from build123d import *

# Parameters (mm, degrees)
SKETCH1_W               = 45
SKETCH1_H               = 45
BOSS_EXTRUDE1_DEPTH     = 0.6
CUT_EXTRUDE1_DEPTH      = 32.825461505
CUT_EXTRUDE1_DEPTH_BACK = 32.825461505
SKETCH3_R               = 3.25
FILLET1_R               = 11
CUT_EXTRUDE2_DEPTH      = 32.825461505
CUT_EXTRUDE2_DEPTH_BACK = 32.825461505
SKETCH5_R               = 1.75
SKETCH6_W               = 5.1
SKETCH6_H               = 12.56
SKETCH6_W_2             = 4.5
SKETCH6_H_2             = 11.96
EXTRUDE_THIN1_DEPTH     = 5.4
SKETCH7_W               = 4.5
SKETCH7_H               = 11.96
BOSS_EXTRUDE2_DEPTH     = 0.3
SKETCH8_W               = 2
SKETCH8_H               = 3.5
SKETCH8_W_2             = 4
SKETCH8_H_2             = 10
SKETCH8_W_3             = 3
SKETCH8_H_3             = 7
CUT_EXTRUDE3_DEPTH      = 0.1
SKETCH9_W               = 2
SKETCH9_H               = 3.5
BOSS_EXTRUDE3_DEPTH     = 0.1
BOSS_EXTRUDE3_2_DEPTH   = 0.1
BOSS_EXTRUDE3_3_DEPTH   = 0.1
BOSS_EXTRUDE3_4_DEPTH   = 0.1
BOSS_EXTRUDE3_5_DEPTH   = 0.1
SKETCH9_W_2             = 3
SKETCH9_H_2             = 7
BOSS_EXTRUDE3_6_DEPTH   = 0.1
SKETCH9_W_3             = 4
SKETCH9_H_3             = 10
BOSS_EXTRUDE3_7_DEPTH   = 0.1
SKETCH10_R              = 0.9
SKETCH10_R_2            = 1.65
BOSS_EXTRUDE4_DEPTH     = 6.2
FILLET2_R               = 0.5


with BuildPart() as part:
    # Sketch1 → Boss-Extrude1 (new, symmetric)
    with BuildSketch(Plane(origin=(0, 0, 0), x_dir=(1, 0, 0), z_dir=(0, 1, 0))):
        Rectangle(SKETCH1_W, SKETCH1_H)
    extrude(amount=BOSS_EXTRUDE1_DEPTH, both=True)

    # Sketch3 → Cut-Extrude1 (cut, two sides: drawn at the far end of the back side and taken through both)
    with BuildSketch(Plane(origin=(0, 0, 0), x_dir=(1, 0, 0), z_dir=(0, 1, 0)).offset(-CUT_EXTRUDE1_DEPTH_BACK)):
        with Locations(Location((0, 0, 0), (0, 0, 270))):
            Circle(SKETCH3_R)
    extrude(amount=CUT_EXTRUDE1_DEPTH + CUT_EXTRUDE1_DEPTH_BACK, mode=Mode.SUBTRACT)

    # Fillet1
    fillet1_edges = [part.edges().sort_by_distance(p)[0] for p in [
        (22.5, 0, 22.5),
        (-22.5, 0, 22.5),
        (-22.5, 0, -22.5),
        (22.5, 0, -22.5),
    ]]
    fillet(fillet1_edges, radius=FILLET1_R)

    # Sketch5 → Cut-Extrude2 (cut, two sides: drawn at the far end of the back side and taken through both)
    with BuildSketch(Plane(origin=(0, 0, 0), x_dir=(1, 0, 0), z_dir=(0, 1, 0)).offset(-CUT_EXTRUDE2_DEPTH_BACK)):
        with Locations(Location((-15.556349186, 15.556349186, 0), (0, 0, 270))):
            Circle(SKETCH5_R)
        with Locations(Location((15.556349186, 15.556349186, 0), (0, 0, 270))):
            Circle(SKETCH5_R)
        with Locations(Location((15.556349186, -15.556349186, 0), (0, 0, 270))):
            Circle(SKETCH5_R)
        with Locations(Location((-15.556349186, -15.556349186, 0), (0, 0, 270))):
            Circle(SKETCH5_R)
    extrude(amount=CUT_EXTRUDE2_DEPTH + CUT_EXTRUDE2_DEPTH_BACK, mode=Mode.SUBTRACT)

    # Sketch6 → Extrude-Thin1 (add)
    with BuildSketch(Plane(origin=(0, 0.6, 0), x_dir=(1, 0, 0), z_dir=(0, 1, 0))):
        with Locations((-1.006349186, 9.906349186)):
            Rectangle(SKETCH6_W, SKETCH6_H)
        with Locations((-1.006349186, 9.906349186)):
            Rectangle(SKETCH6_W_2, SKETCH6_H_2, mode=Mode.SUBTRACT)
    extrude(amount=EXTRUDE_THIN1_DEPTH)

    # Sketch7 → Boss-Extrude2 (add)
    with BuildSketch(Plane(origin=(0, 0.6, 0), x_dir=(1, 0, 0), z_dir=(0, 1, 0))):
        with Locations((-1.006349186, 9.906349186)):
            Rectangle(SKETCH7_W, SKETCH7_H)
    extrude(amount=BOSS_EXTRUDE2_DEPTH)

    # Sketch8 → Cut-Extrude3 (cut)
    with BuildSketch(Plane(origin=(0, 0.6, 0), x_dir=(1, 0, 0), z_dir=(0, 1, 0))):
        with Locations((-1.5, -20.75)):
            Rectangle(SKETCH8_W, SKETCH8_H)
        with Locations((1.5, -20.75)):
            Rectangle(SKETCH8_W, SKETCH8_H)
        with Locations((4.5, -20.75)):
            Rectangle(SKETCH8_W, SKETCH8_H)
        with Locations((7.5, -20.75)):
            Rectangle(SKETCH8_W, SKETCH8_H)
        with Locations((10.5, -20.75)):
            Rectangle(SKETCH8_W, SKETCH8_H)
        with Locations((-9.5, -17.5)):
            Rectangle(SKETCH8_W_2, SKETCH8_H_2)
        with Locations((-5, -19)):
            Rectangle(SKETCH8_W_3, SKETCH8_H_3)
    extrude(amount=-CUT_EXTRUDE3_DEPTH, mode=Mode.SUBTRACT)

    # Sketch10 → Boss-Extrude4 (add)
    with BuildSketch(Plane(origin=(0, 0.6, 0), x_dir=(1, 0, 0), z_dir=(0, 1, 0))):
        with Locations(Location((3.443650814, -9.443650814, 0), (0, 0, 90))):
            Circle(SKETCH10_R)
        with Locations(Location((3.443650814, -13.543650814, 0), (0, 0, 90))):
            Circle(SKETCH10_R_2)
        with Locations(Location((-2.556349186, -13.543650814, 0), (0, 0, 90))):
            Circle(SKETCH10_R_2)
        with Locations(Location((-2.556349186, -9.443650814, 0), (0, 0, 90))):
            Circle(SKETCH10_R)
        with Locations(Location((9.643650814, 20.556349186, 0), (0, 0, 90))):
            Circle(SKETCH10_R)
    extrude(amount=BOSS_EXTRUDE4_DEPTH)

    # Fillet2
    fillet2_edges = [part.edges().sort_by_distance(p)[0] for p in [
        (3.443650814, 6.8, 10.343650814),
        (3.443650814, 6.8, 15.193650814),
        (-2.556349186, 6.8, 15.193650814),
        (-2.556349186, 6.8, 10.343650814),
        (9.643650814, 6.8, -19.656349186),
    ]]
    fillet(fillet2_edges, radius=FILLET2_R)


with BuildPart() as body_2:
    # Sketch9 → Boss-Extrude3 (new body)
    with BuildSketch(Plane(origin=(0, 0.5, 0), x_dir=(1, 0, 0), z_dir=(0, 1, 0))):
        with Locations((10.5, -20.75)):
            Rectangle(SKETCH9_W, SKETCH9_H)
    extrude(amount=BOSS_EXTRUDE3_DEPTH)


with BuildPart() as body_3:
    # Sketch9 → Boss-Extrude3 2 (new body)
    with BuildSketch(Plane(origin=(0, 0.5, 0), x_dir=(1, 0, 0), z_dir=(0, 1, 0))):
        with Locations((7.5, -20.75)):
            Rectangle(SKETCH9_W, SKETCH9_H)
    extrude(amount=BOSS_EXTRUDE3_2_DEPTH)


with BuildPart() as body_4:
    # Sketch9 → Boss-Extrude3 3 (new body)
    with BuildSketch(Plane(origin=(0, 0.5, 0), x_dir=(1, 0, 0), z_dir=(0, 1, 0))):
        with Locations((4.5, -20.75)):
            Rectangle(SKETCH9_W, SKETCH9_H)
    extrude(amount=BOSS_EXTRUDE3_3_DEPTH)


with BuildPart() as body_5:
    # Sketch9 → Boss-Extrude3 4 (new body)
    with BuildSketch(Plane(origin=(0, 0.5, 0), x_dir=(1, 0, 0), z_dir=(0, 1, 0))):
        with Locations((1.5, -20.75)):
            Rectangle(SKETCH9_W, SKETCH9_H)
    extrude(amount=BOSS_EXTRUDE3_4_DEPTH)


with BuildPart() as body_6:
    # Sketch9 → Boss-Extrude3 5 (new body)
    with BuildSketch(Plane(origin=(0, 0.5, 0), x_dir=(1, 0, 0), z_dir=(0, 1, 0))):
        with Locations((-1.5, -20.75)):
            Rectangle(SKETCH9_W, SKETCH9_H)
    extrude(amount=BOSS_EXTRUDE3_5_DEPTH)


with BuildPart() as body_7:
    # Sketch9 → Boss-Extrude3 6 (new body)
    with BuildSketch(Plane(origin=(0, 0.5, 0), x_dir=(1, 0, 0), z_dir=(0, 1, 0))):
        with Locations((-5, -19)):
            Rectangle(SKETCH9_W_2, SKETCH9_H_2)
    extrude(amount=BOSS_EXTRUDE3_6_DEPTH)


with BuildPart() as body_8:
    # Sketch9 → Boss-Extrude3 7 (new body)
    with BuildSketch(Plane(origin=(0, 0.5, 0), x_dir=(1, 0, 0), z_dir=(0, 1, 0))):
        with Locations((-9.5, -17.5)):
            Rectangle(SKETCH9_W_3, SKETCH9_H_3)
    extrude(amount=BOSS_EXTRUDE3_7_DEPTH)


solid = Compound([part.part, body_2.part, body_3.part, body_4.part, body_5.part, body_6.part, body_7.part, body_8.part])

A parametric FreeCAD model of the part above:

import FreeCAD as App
import Part
import Sketcher
Q = App.Units.Quantity


def edges_at(feature, points):
    """Names of the edges that pass closest to the given points."""
    edges = feature.Shape.Edges
    near = lambda p: min(range(len(edges)), key=lambda i: edges[i].distToShape(Part.Vertex(*p))[0])
    return sorted({f"Edge{near(p) + 1}" for p in points})

doc = App.newDocument("Part")
body = doc.addObject("PartDesign::Body", "Body")

# Sketch on XZ plane
sketch1 = body.newObject("Sketcher::SketchObject", "Sketch")
sketch1.AttachmentSupport = (doc.getObject("XZ_Plane"), [""])
sketch1.MapMode = "FlatFace"
sketch1.addGeometry([
    Part.LineSegment(App.Vector(-22, -22, 0), App.Vector(-22, 22, 0)),
    Part.LineSegment(App.Vector(-22, 22, 0), App.Vector(22, 22, 0)),
    Part.LineSegment(App.Vector(22, 22, 0), App.Vector(22, -22, 0)),
    Part.LineSegment(App.Vector(22, -22, 0), App.Vector(-22, -22, 0)),
], False)
sketch1.addConstraint([
    Sketcher.Constraint("Coincident", 0, 2, 1, 1),
    Sketcher.Constraint("Coincident", 1, 2, 2, 1),
    Sketcher.Constraint("Coincident", 2, 2, 3, 1),
    Sketcher.Constraint("Coincident", 3, 2, 0, 1),
    Sketcher.Constraint("Vertical", 0),
    Sketcher.Constraint("Horizontal", 1),
    Sketcher.Constraint("Vertical", 2),
    Sketcher.Constraint("Horizontal", 3),
    Sketcher.Constraint("Symmetric", 0, 2, 2, 2, -1, 1),
    Sketcher.Constraint("Equal", 3, 0),
    Sketcher.Constraint("DistanceX", 1, 1, 1, 2, Q("45 mm")),
])
pad1 = body.newObject("PartDesign::Pad", "Pad")
pad1.Profile = sketch1
pad1.Length = 1.2
pad1.Midplane = True

# Sketch on XZ plane
sketch2 = body.newObject("Sketcher::SketchObject", "Sketch001")
sketch2.AttachmentSupport = (doc.getObject("XZ_Plane"), [""])
sketch2.MapMode = "FlatFace"
sketch2.addGeometry(Part.Circle(App.Vector(0, 0, 0), App.Vector(0, 0, 1), 3.2), False)
sketch2.addConstraint([
    Sketcher.Constraint("Coincident", 0, 3, -1, 1),
    Sketcher.Constraint("Diameter", 0, Q("6.5 mm")),
])
pocket1 = body.newObject("PartDesign::Pocket", "Pocket")
pocket1.Profile = sketch2
pocket1.Type = "ThroughAll"
pocket1.Midplane = True
doc.recompute()

fillet = body.newObject("PartDesign::Fillet", "Fillet")
fillet.Base = (pocket1, edges_at(pocket1, [
    (22.5, 0, 22.5),
    (-22.5, 0, 22.5),
    (-22.5, 0, -22.5),
    (22.5, 0, -22.5),
]))
fillet.Radius = 11

# Sketch on XZ plane
sketch3 = body.newObject("Sketcher::SketchObject", "Sketch002")
sketch3.AttachmentSupport = (doc.getObject("XZ_Plane"), [""])
sketch3.MapMode = "FlatFace"
sketch3.addGeometry([
    Part.Circle(App.Vector(-15.6, -15.6, 0), App.Vector(0, 0, 1), 1.8),
    Part.Circle(App.Vector(15.6, -15.6, 0), App.Vector(0, 0, 1), 1.8),
    Part.Circle(App.Vector(15.6, 15.6, 0), App.Vector(0, 0, 1), 1.8),
    Part.Circle(App.Vector(-15.6, 15.6, 0), App.Vector(0, 0, 1), 1.8),
], False)
sketch3.addConstraint([
    Sketcher.Constraint("Equal", 0, 1),
    Sketcher.Constraint("Equal", 1, 2),
    Sketcher.Constraint("Equal", 2, 3),
    Sketcher.Constraint("Symmetric", 0, 3, 2, 3, -1, 1),
    Sketcher.Constraint("Symmetric", 1, 3, 3, 3, -1, 1),
    Sketcher.Constraint("Symmetric", 0, 3, 1, 3, -2),
    Sketcher.Constraint("Diameter", 0, Q("3.5 mm")),
    Sketcher.Constraint("DistanceX", 0, 3, 1, 3, Q("31.112698 mm")),
    Sketcher.Constraint("DistanceY", 1, 3, 2, 3, Q("31.112698 mm")),
])
pocket2 = body.newObject("PartDesign::Pocket", "Pocket001")
pocket2.Profile = sketch3
pocket2.Type = "ThroughAll"
pocket2.Midplane = True

# Sketch on XZ plane
sketch4 = body.newObject("Sketcher::SketchObject", "Sketch003")
sketch4.AttachmentSupport = (doc.getObject("XZ_Plane"), [""])
sketch4.MapMode = "FlatFace"
sketch4.AttachmentOffset = App.Placement(App.Vector(0, 0, -0.6), App.Rotation())
sketch4.addGeometry([
    Part.LineSegment(App.Vector(-3.6, -16.2, 0), App.Vector(-3.6, -3.6, 0)),  # 0
    Part.LineSegment(App.Vector(-3.6, -3.6, 0), App.Vector(1.5, -3.6, 0)),  # 1
    Part.LineSegment(App.Vector(1.5, -3.6, 0), App.Vector(1.5, -16.2, 0)),  # 2
    Part.LineSegment(App.Vector(1.5, -16.2, 0), App.Vector(-3.6, -16.2, 0)),  # 3
    Part.LineSegment(App.Vector(1.2, -3.9, 0), App.Vector(-3.3, -3.9, 0)),  # 4
    Part.LineSegment(App.Vector(-3.3, -3.9, 0), App.Vector(-3.3, -15.9, 0)),  # 5
    Part.LineSegment(App.Vector(-3.3, -15.9, 0), App.Vector(1.2, -15.9, 0)),  # 6
    Part.LineSegment(App.Vector(1.2, -15.9, 0), App.Vector(1.2, -3.9, 0)),  # 7
], False)
sketch4.addConstraint([
    Sketcher.Constraint("Coincident", 0, 2, 1, 1),
    Sketcher.Constraint("Coincident", 1, 2, 2, 1),
    Sketcher.Constraint("Coincident", 2, 2, 3, 1),
    Sketcher.Constraint("Coincident", 3, 2, 0, 1),
    Sketcher.Constraint("Coincident", 4, 2, 5, 1),
    Sketcher.Constraint("Coincident", 5, 2, 6, 1),
    Sketcher.Constraint("Coincident", 6, 2, 7, 1),
    Sketcher.Constraint("Coincident", 7, 2, 4, 1),
    Sketcher.Constraint("Vertical", 0),
    Sketcher.Constraint("Horizontal", 1),
    Sketcher.Constraint("Vertical", 2),
    Sketcher.Constraint("Horizontal", 3),
    Sketcher.Constraint("Horizontal", 4),
    Sketcher.Constraint("Vertical", 5),
    Sketcher.Constraint("Horizontal", 6),
    Sketcher.Constraint("Vertical", 7),
    Sketcher.Constraint("DistanceX", 1, 1, 1, 2, Q("5.1 mm")),
    Sketcher.Constraint("DistanceX", 4, 2, 4, 1, Q("4.5 mm")),
    Sketcher.Constraint("DistanceY", 0, 1, 0, 2, Q("12.56 mm")),
    Sketcher.Constraint("DistanceY", 5, 2, 5, 1, Q("11.96 mm")),
    Sketcher.Constraint("DistanceX", 0, 2, 4, 2, Q("0.3 mm")),
    Sketcher.Constraint("DistanceY", 4, 2, 0, 2, Q("0.3 mm")),
    Sketcher.Constraint("DistanceX", 0, 2, -1, 1, Q("3.556349 mm")),
    Sketcher.Constraint("DistanceY", 0, 2, -1, 1, Q("3.626349 mm")),
])
pad2 = body.newObject("PartDesign::Pad", "Pad001")
pad2.Profile = sketch4
pad2.Length = 5.4
pad2.Reversed = True

# Sketch on XZ plane
sketch5 = body.newObject("Sketcher::SketchObject", "Sketch004")
sketch5.AttachmentSupport = (doc.getObject("XZ_Plane"), [""])
sketch5.MapMode = "FlatFace"
sketch5.AttachmentOffset = App.Placement(App.Vector(0, 0, -0.6), App.Rotation())
sketch5.addGeometry([
    Part.LineSegment(App.Vector(-3.3, -15.9, 0), App.Vector(-3.3, -3.9, 0)),
    Part.LineSegment(App.Vector(-3.3, -3.9, 0), App.Vector(1.2, -3.9, 0)),
    Part.LineSegment(App.Vector(1.2, -3.9, 0), App.Vector(1.2, -15.9, 0)),
    Part.LineSegment(App.Vector(1.2, -15.9, 0), App.Vector(-3.3, -15.9, 0)),
], False)
sketch5.addConstraint([
    Sketcher.Constraint("Coincident", 0, 2, 1, 1),
    Sketcher.Constraint("Coincident", 1, 2, 2, 1),
    Sketcher.Constraint("Coincident", 2, 2, 3, 1),
    Sketcher.Constraint("Coincident", 3, 2, 0, 1),
    Sketcher.Constraint("Vertical", 0),
    Sketcher.Constraint("Horizontal", 1),
    Sketcher.Constraint("Vertical", 2),
    Sketcher.Constraint("Horizontal", 3),
    Sketcher.Constraint("DistanceX", 1, 1, 1, 2, Q("4.5 mm")),
    Sketcher.Constraint("DistanceY", 0, 1, 0, 2, Q("11.96 mm")),
    Sketcher.Constraint("DistanceX", 0, 2, -1, 1, Q("3.256349 mm")),
    Sketcher.Constraint("DistanceY", 0, 2, -1, 1, Q("3.926349 mm")),
])
pad3 = body.newObject("PartDesign::Pad", "Pad002")
pad3.Profile = sketch5
pad3.Length = 0.3
pad3.Reversed = True

# Sketch on XZ plane
sketch6 = body.newObject("Sketcher::SketchObject", "Sketch005")
sketch6.AttachmentSupport = (doc.getObject("XZ_Plane"), [""])
sketch6.MapMode = "FlatFace"
sketch6.AttachmentOffset = App.Placement(App.Vector(0, 0, -0.6), App.Rotation())
sketch6.addGeometry([
    Part.LineSegment(App.Vector(-2.5, 19, 0), App.Vector(-2.5, 22.5, 0)),  # 0
    Part.LineSegment(App.Vector(-2.5, 22.5, 0), App.Vector(-0.5, 22.5, 0)),  # 1
    Part.LineSegment(App.Vector(-0.5, 22.5, 0), App.Vector(-0.5, 19, 0)),  # 2
    Part.LineSegment(App.Vector(-0.5, 19, 0), App.Vector(-2.5, 19, 0)),  # 3
    Part.LineSegment(App.Vector(0.5, 19, 0), App.Vector(0.5, 22.5, 0)),  # 4
    Part.LineSegment(App.Vector(0.5, 22.5, 0), App.Vector(2.5, 22.5, 0)),  # 5
    Part.LineSegment(App.Vector(2.5, 22.5, 0), App.Vector(2.5, 19, 0)),  # 6
    Part.LineSegment(App.Vector(2.5, 19, 0), App.Vector(0.5, 19, 0)),  # 7
    Part.LineSegment(App.Vector(3.5, 19, 0), App.Vector(3.5, 22.5, 0)),  # 8
    Part.LineSegment(App.Vector(3.5, 22.5, 0), App.Vector(5.5, 22.5, 0)),  # 9
    Part.LineSegment(App.Vector(5.5, 22.5, 0), App.Vector(5.5, 19, 0)),  # 10
    Part.LineSegment(App.Vector(5.5, 19, 0), App.Vector(3.5, 19, 0)),  # 11
    Part.LineSegment(App.Vector(6.5, 19, 0), App.Vector(6.5, 22.5, 0)),  # 12
    Part.LineSegment(App.Vector(6.5, 22.5, 0), App.Vector(8.5, 22.5, 0)),  # 13
    Part.LineSegment(App.Vector(8.5, 22.5, 0), App.Vector(8.5, 19, 0)),  # 14
    Part.LineSegment(App.Vector(8.5, 19, 0), App.Vector(6.5, 19, 0)),  # 15
    Part.LineSegment(App.Vector(9.5, 19, 0), App.Vector(9.5, 22.5, 0)),  # 16
    Part.LineSegment(App.Vector(9.5, 22.5, 0), App.Vector(11.5, 22.5, 0)),  # 17
    Part.LineSegment(App.Vector(11.5, 22.5, 0), App.Vector(11.5, 19, 0)),  # 18
    Part.LineSegment(App.Vector(11.5, 19, 0), App.Vector(9.5, 19, 0)),  # 19
    Part.LineSegment(App.Vector(-11.5, 12.5, 0), App.Vector(-11.5, 22.5, 0)),  # 20
    Part.LineSegment(App.Vector(-11.5, 22.5, 0), App.Vector(-7.5, 22.5, 0)),  # 21
    Part.LineSegment(App.Vector(-7.5, 22.5, 0), App.Vector(-7.5, 12.5, 0)),  # 22
    Part.LineSegment(App.Vector(-7.5, 12.5, 0), App.Vector(-11.5, 12.5, 0)),  # 23
    Part.LineSegment(App.Vector(-6.5, 15.5, 0), App.Vector(-6.5, 22.5, 0)),  # 24
    Part.LineSegment(App.Vector(-6.5, 22.5, 0), App.Vector(-3.5, 22.5, 0)),  # 25
    Part.LineSegment(App.Vector(-3.5, 22.5, 0), App.Vector(-3.5, 15.5, 0)),  # 26
    Part.LineSegment(App.Vector(-3.5, 15.5, 0), App.Vector(-6.5, 15.5, 0)),  # 27
], False)
sketch6.addConstraint([
    Sketcher.Constraint("Coincident", 0, 2, 1, 1),
    Sketcher.Constraint("Coincident", 1, 2, 2, 1),
    Sketcher.Constraint("Coincident", 2, 2, 3, 1),
    Sketcher.Constraint("Coincident", 3, 2, 0, 1),
    Sketcher.Constraint("Coincident", 4, 2, 5, 1),
    Sketcher.Constraint("Coincident", 5, 2, 6, 1),
    Sketcher.Constraint("Coincident", 6, 2, 7, 1),
    Sketcher.Constraint("Coincident", 7, 2, 4, 1),
    Sketcher.Constraint("Coincident", 8, 2, 9, 1),
    Sketcher.Constraint("Coincident", 9, 2, 10, 1),
    Sketcher.Constraint("Coincident", 10, 2, 11, 1),
    Sketcher.Constraint("Coincident", 11, 2, 8, 1),
    Sketcher.Constraint("Coincident", 12, 2, 13, 1),
    Sketcher.Constraint("Coincident", 13, 2, 14, 1),
    Sketcher.Constraint("Coincident", 14, 2, 15, 1),
    Sketcher.Constraint("Coincident", 15, 2, 12, 1),
    Sketcher.Constraint("Coincident", 16, 2, 17, 1),
    Sketcher.Constraint("Coincident", 17, 2, 18, 1),
    Sketcher.Constraint("Coincident", 18, 2, 19, 1),
    Sketcher.Constraint("Coincident", 19, 2, 16, 1),
    Sketcher.Constraint("Coincident", 20, 2, 21, 1),
    Sketcher.Constraint("Coincident", 21, 2, 22, 1),
    Sketcher.Constraint("Coincident", 22, 2, 23, 1),
    Sketcher.Constraint("Coincident", 23, 2, 20, 1),
    Sketcher.Constraint("Coincident", 24, 2, 25, 1),
    Sketcher.Constraint("Coincident", 25, 2, 26, 1),
    Sketcher.Constraint("Coincident", 26, 2, 27, 1),
    Sketcher.Constraint("Coincident", 27, 2, 24, 1),
    Sketcher.Constraint("Vertical", 0),
    Sketcher.Constraint("Horizontal", 1),
    Sketcher.Constraint("Vertical", 2),
    Sketcher.Constraint("Horizontal", 3),
    Sketcher.Constraint("Vertical", 4),
    Sketcher.Constraint("Horizontal", 5),
    Sketcher.Constraint("Vertical", 6),
    Sketcher.Constraint("Horizontal", 7),
    Sketcher.Constraint("Vertical", 8),
    Sketcher.Constraint("Horizontal", 9),
    Sketcher.Constraint("Vertical", 10),
    Sketcher.Constraint("Horizontal", 11),
    Sketcher.Constraint("Vertical", 12),
    Sketcher.Constraint("Horizontal", 13),
    Sketcher.Constraint("Vertical", 14),
    Sketcher.Constraint("Horizontal", 15),
    Sketcher.Constraint("Vertical", 16),
    Sketcher.Constraint("Horizontal", 17),
    Sketcher.Constraint("Vertical", 18),
    Sketcher.Constraint("Horizontal", 19),
    Sketcher.Constraint("Vertical", 20),
    Sketcher.Constraint("Horizontal", 21),
    Sketcher.Constraint("Vertical", 22),
    Sketcher.Constraint("Horizontal", 23),
    Sketcher.Constraint("Vertical", 24),
    Sketcher.Constraint("Horizontal", 25),
    Sketcher.Constraint("Vertical", 26),
    Sketcher.Constraint("Horizontal", 27),
    Sketcher.Constraint("Symmetric", 1, 2, 4, 2, -2),
    Sketcher.Constraint("Symmetric", 3, 2, 6, 2, -2),
    Sketcher.Constraint("Symmetric", 17, 2, 20, 2, -2),
    Sketcher.Constraint("Symmetric", 12, 2, 24, 2, -2),
    Sketcher.Constraint("Symmetric", 8, 2, 25, 2, -2),
    Sketcher.Constraint("Horizontal", 5, 2, 8, 2),
    Sketcher.Constraint("Horizontal", 7, 2, 10, 2),
    Sketcher.Constraint("Horizontal", 11, 2, 14, 2),
    Sketcher.Constraint("Horizontal", 13, 2, 16, 2),
    Sketcher.Constraint("Horizontal", 15, 2, 18, 2),
    Sketcher.Constraint("Equal", 7, 9),
    Sketcher.Constraint("Equal", 11, 13),
    Sketcher.Constraint("Equal", 15, 17),
    Sketcher.Constraint("DistanceX", 1, 1, 1, 2, Q("2 mm")),
    Sketcher.Constraint("DistanceX", 21, 1, 21, 2, Q("4 mm")),
    Sketcher.Constraint("DistanceX", 25, 1, 25, 2, Q("3 mm")),
    Sketcher.Constraint("DistanceY", 20, 1, 20, 2, Q("10 mm")),
    Sketcher.Constraint("DistanceY", 24, 1, 24, 2, Q("7 mm")),
    Sketcher.Constraint("DistanceY", 0, 1, 0, 2, Q("3.5 mm")),
    Sketcher.Constraint("DistanceY", -1, 1, 2, 2, Q("19 mm")),
    Sketcher.Constraint("DistanceX", 1, 2, 4, 2, Q("1 mm")),
    Sketcher.Constraint("DistanceX", 5, 2, 8, 2, Q("1 mm")),
    Sketcher.Constraint("DistanceX", 13, 2, 16, 2, Q("1 mm")),
])
pocket3 = body.newObject("PartDesign::Pocket", "Pocket002")
pocket3.Profile = sketch6
pocket3.Length = 0.1
pocket3.Reversed = True

# Sketch on XZ plane
sketch7 = body.newObject("Sketcher::SketchObject", "Sketch006")
sketch7.AttachmentSupport = (doc.getObject("XZ_Plane"), [""])
sketch7.MapMode = "FlatFace"
sketch7.AttachmentOffset = App.Placement(App.Vector(0, 0, -0.6), App.Rotation())
sketch7.addGeometry([
    Part.Circle(App.Vector(3.4, 9.4, 0), App.Vector(0, 0, 1), 0.9),  # 0
    Part.Circle(App.Vector(3.4, 13.5, 0), App.Vector(0, 0, 1), 1.6),  # 1
    Part.Circle(App.Vector(-2.6, 13.5, 0), App.Vector(0, 0, 1), 1.6),  # 2
    Part.Circle(App.Vector(-2.6, 9.4, 0), App.Vector(0, 0, 1), 0.9),  # 3
    Part.Circle(App.Vector(9.6, -20.6, 0), App.Vector(0, 0, 1), 0.9),  # 4
], False)
sketch7.addConstraint([
    Sketcher.Constraint("Equal", 1, 2),
    Sketcher.Constraint("Equal", 0, 3),
    Sketcher.Constraint("Equal", 3, 4),
    Sketcher.Constraint("Horizontal", 1, 3, 2, 3),
    Sketcher.Constraint("Horizontal", 0, 3, 3, 3),
    Sketcher.Constraint("Vertical", 0, 3, 1, 3),
    Sketcher.Constraint("Vertical", 2, 3, 3, 3),
    Sketcher.Constraint("Diameter", 0, Q("1.8 mm")),
    Sketcher.Constraint("Diameter", 1, Q("3.3 mm")),
    Sketcher.Constraint("DistanceX", 2, 3, 1, 3, Q("6 mm")),
    Sketcher.Constraint("DistanceY", 4, 3, 0, 3, Q("30 mm")),
    Sketcher.Constraint("DistanceY", 0, 3, 1, 3, Q("4.1 mm")),
    Sketcher.Constraint("DistanceX", 0, 3, 4, 3, Q("6.2 mm")),
    Sketcher.Constraint("DistanceX", -1, 1, 0, 3, Q("3.443651 mm")),
    Sketcher.Constraint("DistanceY", -1, 1, 0, 3, Q("9.443651 mm")),
])
pad4 = body.newObject("PartDesign::Pad", "Pad003")
pad4.Profile = sketch7
pad4.Length = 6.2
pad4.Reversed = True
doc.recompute()

fillet2 = body.newObject("PartDesign::Fillet", "Fillet001")
fillet2.Base = (pad4, edges_at(pad4, [
    (3.444, 6.8, 10.344),
    (3.444, 6.8, 15.194),
    (-2.556, 6.8, 15.194),
    (-2.556, 6.8, 10.344),
    (9.644, 6.8, -19.656),
]))
fillet2.Radius = 0.5
body2 = doc.addObject("PartDesign::Body", "Body001")

# Sketch on XZ plane
sketch8 = body2.newObject("Sketcher::SketchObject", "Sketch007")
sketch8.AttachmentSupport = (doc.getObject("XZ_Plane001"), [""])
sketch8.MapMode = "FlatFace"
sketch8.AttachmentOffset = App.Placement(App.Vector(0, 0, -0.5), App.Rotation())
sketch8.addGeometry([
    Part.LineSegment(App.Vector(9.5, 19, 0), App.Vector(9.5, 22.5, 0)),
    Part.LineSegment(App.Vector(9.5, 22.5, 0), App.Vector(11.5, 22.5, 0)),
    Part.LineSegment(App.Vector(11.5, 22.5, 0), App.Vector(11.5, 19, 0)),
    Part.LineSegment(App.Vector(11.5, 19, 0), App.Vector(9.5, 19, 0)),
], False)
sketch8.addConstraint([
    Sketcher.Constraint("Coincident", 0, 2, 1, 1),
    Sketcher.Constraint("Coincident", 1, 2, 2, 1),
    Sketcher.Constraint("Coincident", 2, 2, 3, 1),
    Sketcher.Constraint("Coincident", 3, 2, 0, 1),
    Sketcher.Constraint("Vertical", 0),
    Sketcher.Constraint("Horizontal", 1),
    Sketcher.Constraint("Vertical", 2),
    Sketcher.Constraint("Horizontal", 3),
    Sketcher.Constraint("DistanceX", 1, 1, 1, 2, Q("2 mm")),
    Sketcher.Constraint("DistanceY", 0, 1, 0, 2, Q("3.5 mm")),
    Sketcher.Constraint("DistanceY", -1, 1, 2, 2, Q("19 mm")),
    Sketcher.Constraint("DistanceX", -1, 1, 0, 2, Q("9.5 mm")),
])
pad5 = body2.newObject("PartDesign::Pad", "Pad004")
pad5.Profile = sketch8
pad5.Length = 0.1
pad5.Reversed = True
body3 = doc.addObject("PartDesign::Body", "Body002")

# Sketch on XZ plane
sketch9 = body3.newObject("Sketcher::SketchObject", "Sketch008")
sketch9.AttachmentSupport = (doc.getObject("XZ_Plane002"), [""])
sketch9.MapMode = "FlatFace"
sketch9.AttachmentOffset = App.Placement(App.Vector(0, 0, -0.5), App.Rotation())
sketch9.addGeometry([
    Part.LineSegment(App.Vector(6.5, 19, 0), App.Vector(6.5, 22.5, 0)),
    Part.LineSegment(App.Vector(6.5, 22.5, 0), App.Vector(8.5, 22.5, 0)),
    Part.LineSegment(App.Vector(8.5, 22.5, 0), App.Vector(8.5, 19, 0)),
    Part.LineSegment(App.Vector(8.5, 19, 0), App.Vector(6.5, 19, 0)),
], False)
sketch9.addConstraint([
    Sketcher.Constraint("Coincident", 0, 2, 1, 1),
    Sketcher.Constraint("Coincident", 1, 2, 2, 1),
    Sketcher.Constraint("Coincident", 2, 2, 3, 1),
    Sketcher.Constraint("Coincident", 3, 2, 0, 1),
    Sketcher.Constraint("Vertical", 0),
    Sketcher.Constraint("Horizontal", 1),
    Sketcher.Constraint("Vertical", 2),
    Sketcher.Constraint("Horizontal", 3),
    Sketcher.Constraint("DistanceX", 1, 1, 1, 2, Q("2 mm")),
    Sketcher.Constraint("DistanceY", 0, 1, 0, 2, Q("3.5 mm")),
    Sketcher.Constraint("DistanceY", -1, 1, 2, 2, Q("19 mm")),
    Sketcher.Constraint("DistanceX", -1, 1, 0, 2, Q("6.5 mm")),
])
pad6 = body3.newObject("PartDesign::Pad", "Pad005")
pad6.Profile = sketch9
pad6.Length = 0.1
pad6.Reversed = True
body4 = doc.addObject("PartDesign::Body", "Body003")

# Sketch on XZ plane
sketch10 = body4.newObject("Sketcher::SketchObject", "Sketch009")
sketch10.AttachmentSupport = (doc.getObject("XZ_Plane003"), [""])
sketch10.MapMode = "FlatFace"
sketch10.AttachmentOffset = App.Placement(App.Vector(0, 0, -0.5), App.Rotation())
sketch10.addGeometry([
    Part.LineSegment(App.Vector(3.5, 19, 0), App.Vector(3.5, 22.5, 0)),
    Part.LineSegment(App.Vector(3.5, 22.5, 0), App.Vector(5.5, 22.5, 0)),
    Part.LineSegment(App.Vector(5.5, 22.5, 0), App.Vector(5.5, 19, 0)),
    Part.LineSegment(App.Vector(5.5, 19, 0), App.Vector(3.5, 19, 0)),
], False)
sketch10.addConstraint([
    Sketcher.Constraint("Coincident", 0, 2, 1, 1),
    Sketcher.Constraint("Coincident", 1, 2, 2, 1),
    Sketcher.Constraint("Coincident", 2, 2, 3, 1),
    Sketcher.Constraint("Coincident", 3, 2, 0, 1),
    Sketcher.Constraint("Vertical", 0),
    Sketcher.Constraint("Horizontal", 1),
    Sketcher.Constraint("Vertical", 2),
    Sketcher.Constraint("Horizontal", 3),
    Sketcher.Constraint("DistanceX", 1, 1, 1, 2, Q("2 mm")),
    Sketcher.Constraint("DistanceY", 0, 1, 0, 2, Q("3.5 mm")),
    Sketcher.Constraint("DistanceY", -1, 1, 2, 2, Q("19 mm")),
    Sketcher.Constraint("DistanceX", -1, 1, 0, 2, Q("3.5 mm")),
])
pad7 = body4.newObject("PartDesign::Pad", "Pad006")
pad7.Profile = sketch10
pad7.Length = 0.1
pad7.Reversed = True
body5 = doc.addObject("PartDesign::Body", "Body004")

# Sketch on XZ plane
sketch11 = body5.newObject("Sketcher::SketchObject", "Sketch010")
sketch11.AttachmentSupport = (doc.getObject("XZ_Plane004"), [""])
sketch11.MapMode = "FlatFace"
sketch11.AttachmentOffset = App.Placement(App.Vector(0, 0, -0.5), App.Rotation())
sketch11.addGeometry([
    Part.LineSegment(App.Vector(0.5, 19, 0), App.Vector(0.5, 22.5, 0)),
    Part.LineSegment(App.Vector(0.5, 22.5, 0), App.Vector(2.5, 22.5, 0)),
    Part.LineSegment(App.Vector(2.5, 22.5, 0), App.Vector(2.5, 19, 0)),
    Part.LineSegment(App.Vector(2.5, 19, 0), App.Vector(0.5, 19, 0)),
], False)
sketch11.addConstraint([
    Sketcher.Constraint("Coincident", 0, 2, 1, 1),
    Sketcher.Constraint("Coincident", 1, 2, 2, 1),
    Sketcher.Constraint("Coincident", 2, 2, 3, 1),
    Sketcher.Constraint("Coincident", 3, 2, 0, 1),
    Sketcher.Constraint("Vertical", 0),
    Sketcher.Constraint("Horizontal", 1),
    Sketcher.Constraint("Vertical", 2),
    Sketcher.Constraint("Horizontal", 3),
    Sketcher.Constraint("DistanceX", 1, 1, 1, 2, Q("2 mm")),
    Sketcher.Constraint("DistanceY", 0, 1, 0, 2, Q("3.5 mm")),
    Sketcher.Constraint("DistanceY", -1, 1, 2, 2, Q("19 mm")),
    Sketcher.Constraint("DistanceX", -1, 1, 0, 2, Q("0.5 mm")),
])
pad8 = body5.newObject("PartDesign::Pad", "Pad007")
pad8.Profile = sketch11
pad8.Length = 0.1
pad8.Reversed = True
body6 = doc.addObject("PartDesign::Body", "Body005")

# Sketch on XZ plane
sketch12 = body6.newObject("Sketcher::SketchObject", "Sketch011")
sketch12.AttachmentSupport = (doc.getObject("XZ_Plane005"), [""])
sketch12.MapMode = "FlatFace"
sketch12.AttachmentOffset = App.Placement(App.Vector(0, 0, -0.5), App.Rotation())
sketch12.addGeometry([
    Part.LineSegment(App.Vector(-2.5, 19, 0), App.Vector(-2.5, 22.5, 0)),
    Part.LineSegment(App.Vector(-2.5, 22.5, 0), App.Vector(-0.5, 22.5, 0)),
    Part.LineSegment(App.Vector(-0.5, 22.5, 0), App.Vector(-0.5, 19, 0)),
    Part.LineSegment(App.Vector(-0.5, 19, 0), App.Vector(-2.5, 19, 0)),
], False)
sketch12.addConstraint([
    Sketcher.Constraint("Coincident", 0, 2, 1, 1),
    Sketcher.Constraint("Coincident", 1, 2, 2, 1),
    Sketcher.Constraint("Coincident", 2, 2, 3, 1),
    Sketcher.Constraint("Coincident", 3, 2, 0, 1),
    Sketcher.Constraint("Vertical", 0),
    Sketcher.Constraint("Horizontal", 1),
    Sketcher.Constraint("Vertical", 2),
    Sketcher.Constraint("Horizontal", 3),
    Sketcher.Constraint("DistanceX", 1, 1, 1, 2, Q("2 mm")),
    Sketcher.Constraint("DistanceY", 0, 1, 0, 2, Q("3.5 mm")),
    Sketcher.Constraint("DistanceY", -1, 1, 2, 2, Q("19 mm")),
    Sketcher.Constraint("DistanceX", 0, 2, -1, 1, Q("2.5 mm")),
])
pad9 = body6.newObject("PartDesign::Pad", "Pad008")
pad9.Profile = sketch12
pad9.Length = 0.1
pad9.Reversed = True
body7 = doc.addObject("PartDesign::Body", "Body006")

# Sketch on XZ plane
sketch13 = body7.newObject("Sketcher::SketchObject", "Sketch012")
sketch13.AttachmentSupport = (doc.getObject("XZ_Plane006"), [""])
sketch13.MapMode = "FlatFace"
sketch13.AttachmentOffset = App.Placement(App.Vector(0, 0, -0.5), App.Rotation())
sketch13.addGeometry([
    Part.LineSegment(App.Vector(-6.5, 15.5, 0), App.Vector(-6.5, 22.5, 0)),
    Part.LineSegment(App.Vector(-6.5, 22.5, 0), App.Vector(-3.5, 22.5, 0)),
    Part.LineSegment(App.Vector(-3.5, 22.5, 0), App.Vector(-3.5, 15.5, 0)),
    Part.LineSegment(App.Vector(-3.5, 15.5, 0), App.Vector(-6.5, 15.5, 0)),
], False)
sketch13.addConstraint([
    Sketcher.Constraint("Coincident", 0, 2, 1, 1),
    Sketcher.Constraint("Coincident", 1, 2, 2, 1),
    Sketcher.Constraint("Coincident", 2, 2, 3, 1),
    Sketcher.Constraint("Coincident", 3, 2, 0, 1),
    Sketcher.Constraint("Vertical", 0),
    Sketcher.Constraint("Horizontal", 1),
    Sketcher.Constraint("Vertical", 2),
    Sketcher.Constraint("Horizontal", 3),
    Sketcher.Constraint("DistanceX", 1, 1, 1, 2, Q("3 mm")),
    Sketcher.Constraint("DistanceY", 0, 1, 0, 2, Q("7 mm")),
    Sketcher.Constraint("DistanceX", 0, 2, -1, 1, Q("6.5 mm")),
    Sketcher.Constraint("DistanceY", -1, 1, 0, 2, Q("22.5 mm")),
])
pad10 = body7.newObject("PartDesign::Pad", "Pad009")
pad10.Profile = sketch13
pad10.Length = 0.1
pad10.Reversed = True
body8 = doc.addObject("PartDesign::Body", "Body007")

# Sketch on XZ plane
sketch14 = body8.newObject("Sketcher::SketchObject", "Sketch013")
sketch14.AttachmentSupport = (doc.getObject("XZ_Plane007"), [""])
sketch14.MapMode = "FlatFace"
sketch14.AttachmentOffset = App.Placement(App.Vector(0, 0, -0.5), App.Rotation())
sketch14.addGeometry([
    Part.LineSegment(App.Vector(-11.5, 12.5, 0), App.Vector(-11.5, 22.5, 0)),
    Part.LineSegment(App.Vector(-11.5, 22.5, 0), App.Vector(-7.5, 22.5, 0)),
    Part.LineSegment(App.Vector(-7.5, 22.5, 0), App.Vector(-7.5, 12.5, 0)),
    Part.LineSegment(App.Vector(-7.5, 12.5, 0), App.Vector(-11.5, 12.5, 0)),
], False)
sketch14.addConstraint([
    Sketcher.Constraint("Coincident", 0, 2, 1, 1),
    Sketcher.Constraint("Coincident", 1, 2, 2, 1),
    Sketcher.Constraint("Coincident", 2, 2, 3, 1),
    Sketcher.Constraint("Coincident", 3, 2, 0, 1),
    Sketcher.Constraint("Vertical", 0),
    Sketcher.Constraint("Horizontal", 1),
    Sketcher.Constraint("Vertical", 2),
    Sketcher.Constraint("Horizontal", 3),
    Sketcher.Constraint("DistanceX", 1, 1, 1, 2, Q("4 mm")),
    Sketcher.Constraint("DistanceY", 0, 1, 0, 2, Q("10 mm")),
    Sketcher.Constraint("DistanceX", 0, 2, -1, 1, Q("11.5 mm")),
    Sketcher.Constraint("DistanceY", -1, 1, 0, 2, Q("22.5 mm")),
])
pad11 = body8.newObject("PartDesign::Pad", "Pad010")
pad11.Profile = sketch14
pad11.Length = 0.1
pad11.Reversed = True

doc.recompute()
